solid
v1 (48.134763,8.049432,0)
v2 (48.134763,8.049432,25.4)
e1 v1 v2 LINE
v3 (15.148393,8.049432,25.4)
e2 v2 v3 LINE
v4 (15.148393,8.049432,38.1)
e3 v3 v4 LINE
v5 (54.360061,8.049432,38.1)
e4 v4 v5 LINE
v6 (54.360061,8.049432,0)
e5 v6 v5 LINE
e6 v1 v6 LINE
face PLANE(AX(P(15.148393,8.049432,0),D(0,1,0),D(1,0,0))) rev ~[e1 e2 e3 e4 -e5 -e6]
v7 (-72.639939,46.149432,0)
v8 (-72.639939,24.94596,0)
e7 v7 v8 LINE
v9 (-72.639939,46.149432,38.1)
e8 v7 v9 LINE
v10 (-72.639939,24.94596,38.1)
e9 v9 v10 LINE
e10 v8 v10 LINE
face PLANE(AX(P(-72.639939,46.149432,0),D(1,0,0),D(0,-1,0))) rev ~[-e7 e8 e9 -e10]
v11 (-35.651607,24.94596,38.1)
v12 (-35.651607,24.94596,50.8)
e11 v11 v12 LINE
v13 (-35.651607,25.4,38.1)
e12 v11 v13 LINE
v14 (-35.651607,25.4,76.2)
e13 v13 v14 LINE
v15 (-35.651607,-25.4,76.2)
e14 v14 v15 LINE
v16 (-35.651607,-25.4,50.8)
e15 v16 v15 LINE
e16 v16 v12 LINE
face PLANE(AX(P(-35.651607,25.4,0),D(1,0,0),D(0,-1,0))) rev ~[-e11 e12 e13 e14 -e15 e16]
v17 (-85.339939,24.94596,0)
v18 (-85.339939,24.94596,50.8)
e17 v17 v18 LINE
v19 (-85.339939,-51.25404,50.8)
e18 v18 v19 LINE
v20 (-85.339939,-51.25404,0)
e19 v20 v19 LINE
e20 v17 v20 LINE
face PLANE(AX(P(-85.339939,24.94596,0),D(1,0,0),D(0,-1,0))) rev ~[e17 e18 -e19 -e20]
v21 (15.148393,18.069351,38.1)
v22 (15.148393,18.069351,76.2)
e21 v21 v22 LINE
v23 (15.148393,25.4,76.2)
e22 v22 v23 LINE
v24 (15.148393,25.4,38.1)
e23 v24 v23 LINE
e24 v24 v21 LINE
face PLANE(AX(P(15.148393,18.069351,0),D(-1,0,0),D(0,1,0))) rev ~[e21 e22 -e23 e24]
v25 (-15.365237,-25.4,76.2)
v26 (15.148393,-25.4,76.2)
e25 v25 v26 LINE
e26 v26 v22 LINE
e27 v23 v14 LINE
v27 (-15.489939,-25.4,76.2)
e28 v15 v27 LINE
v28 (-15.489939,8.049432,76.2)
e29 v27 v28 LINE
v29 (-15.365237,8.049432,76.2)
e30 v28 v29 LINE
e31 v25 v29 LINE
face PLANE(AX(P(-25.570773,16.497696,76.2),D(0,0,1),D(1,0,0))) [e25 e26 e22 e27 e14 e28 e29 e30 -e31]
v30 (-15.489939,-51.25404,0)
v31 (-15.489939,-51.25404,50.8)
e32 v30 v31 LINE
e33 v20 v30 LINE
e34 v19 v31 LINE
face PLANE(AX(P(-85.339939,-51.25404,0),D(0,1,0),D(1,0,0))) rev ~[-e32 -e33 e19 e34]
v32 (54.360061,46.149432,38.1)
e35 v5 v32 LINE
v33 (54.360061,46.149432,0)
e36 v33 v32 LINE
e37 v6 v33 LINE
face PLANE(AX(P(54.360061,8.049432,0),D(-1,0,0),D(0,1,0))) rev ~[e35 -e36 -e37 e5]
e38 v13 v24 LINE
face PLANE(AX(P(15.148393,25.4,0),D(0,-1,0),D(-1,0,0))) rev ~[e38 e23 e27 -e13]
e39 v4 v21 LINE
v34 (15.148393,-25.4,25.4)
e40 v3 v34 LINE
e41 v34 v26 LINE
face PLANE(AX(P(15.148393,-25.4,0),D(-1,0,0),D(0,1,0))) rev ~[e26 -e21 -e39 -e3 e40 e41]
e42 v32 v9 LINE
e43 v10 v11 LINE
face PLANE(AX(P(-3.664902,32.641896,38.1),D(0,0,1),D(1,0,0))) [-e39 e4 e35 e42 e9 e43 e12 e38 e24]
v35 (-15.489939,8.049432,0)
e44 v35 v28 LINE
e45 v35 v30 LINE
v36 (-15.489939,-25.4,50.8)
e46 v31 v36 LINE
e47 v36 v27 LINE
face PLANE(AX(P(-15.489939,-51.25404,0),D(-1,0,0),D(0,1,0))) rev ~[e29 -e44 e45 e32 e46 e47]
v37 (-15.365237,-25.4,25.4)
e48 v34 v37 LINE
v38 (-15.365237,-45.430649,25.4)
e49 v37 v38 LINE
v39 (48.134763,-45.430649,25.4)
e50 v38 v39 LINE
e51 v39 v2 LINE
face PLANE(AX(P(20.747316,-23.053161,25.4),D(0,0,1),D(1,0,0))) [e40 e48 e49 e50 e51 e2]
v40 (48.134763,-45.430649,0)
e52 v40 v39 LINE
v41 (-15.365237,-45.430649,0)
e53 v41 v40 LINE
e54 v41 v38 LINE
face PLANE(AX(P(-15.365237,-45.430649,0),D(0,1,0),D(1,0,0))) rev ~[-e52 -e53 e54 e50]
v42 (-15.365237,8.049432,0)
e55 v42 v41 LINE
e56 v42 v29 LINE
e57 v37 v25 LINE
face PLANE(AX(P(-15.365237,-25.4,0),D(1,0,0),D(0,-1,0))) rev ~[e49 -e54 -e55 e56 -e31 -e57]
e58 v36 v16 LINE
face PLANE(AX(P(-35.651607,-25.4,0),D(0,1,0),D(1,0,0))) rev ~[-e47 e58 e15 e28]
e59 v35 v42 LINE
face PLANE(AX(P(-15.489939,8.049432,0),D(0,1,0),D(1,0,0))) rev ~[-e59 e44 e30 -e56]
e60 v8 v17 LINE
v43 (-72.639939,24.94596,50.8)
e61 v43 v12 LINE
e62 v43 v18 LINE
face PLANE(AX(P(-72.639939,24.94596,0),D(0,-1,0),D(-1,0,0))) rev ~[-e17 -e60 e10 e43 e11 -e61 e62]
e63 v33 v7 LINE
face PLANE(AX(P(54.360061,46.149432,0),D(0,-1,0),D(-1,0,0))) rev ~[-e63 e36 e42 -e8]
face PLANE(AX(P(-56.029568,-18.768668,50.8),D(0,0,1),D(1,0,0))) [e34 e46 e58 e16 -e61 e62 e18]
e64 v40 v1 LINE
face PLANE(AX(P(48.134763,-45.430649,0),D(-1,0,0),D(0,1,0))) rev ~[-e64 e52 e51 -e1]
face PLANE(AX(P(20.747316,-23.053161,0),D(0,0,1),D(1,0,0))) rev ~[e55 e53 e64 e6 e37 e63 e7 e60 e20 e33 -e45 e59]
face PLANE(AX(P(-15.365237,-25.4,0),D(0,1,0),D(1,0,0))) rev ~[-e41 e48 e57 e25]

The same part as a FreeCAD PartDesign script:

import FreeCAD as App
import Part
import Sketcher
from FreeCAD import Vector
Q = App.Units.Quantity

doc = App.newDocument("Part")
params = doc.addObject("Spreadsheet::Sheet", "Params")
for row, (alias, value) in enumerate([
    ("sketch1_width", "2 in"),
    ("pad1_length", "3 in"),
    ("sketch2_height", "3 in"),
    ("sketch2_width", "0.5 in"),
    ("sketch2_width2", "2.75 in"),
    ("pad2_length", "2 in"),
    ("sketch3_width", "2 in"),
    ("sketch3_width2", "5 in"),
    ("sketch3_height", "1.5 in"),
    ("pad3_length", "1.5 in"),
    ("sketch4_width", "2.5 in"),
    ("pad4_length", "1 in"),
], start=1):
    params.set(f"A{row}", alias)
    params.set(f"B{row}", "=" + value)
    params.setAlias(f"B{row}", alias)

body = doc.addObject("PartDesign::Body", "Body")

sketch1 = body.newObject("Sketcher::SketchObject", "Sketch")
sketch1.AttachmentSupport = (doc.getObject("XY_Plane"), [""])
sketch1.MapMode = "FlatFace"
sketch1.addGeometry([
    Part.LineSegment(Vector(-15.49, 8.05, 0), Vector(-15.37, 8.05, 0)),
    Part.LineSegment(Vector(-15.37, 8.05, 0), Vector(-15.37, -25.4, 0)),
    Part.LineSegment(Vector(-15.37, -25.4, 0), Vector(15.15, -25.4, 0)),
    Part.LineSegment(Vector(15.15, -25.4, 0), Vector(15.15, 18.07, 0)),
    Part.LineSegment(Vector(15.15, 18.07, 0), Vector(15.15, 25.4, 0)),
    Part.LineSegment(Vector(15.15, 25.4, 0), Vector(-35.65, 25.4, 0)),
    Part.LineSegment(Vector(-35.65, 25.4, 0), Vector(-35.65, -25.4, 0)),
    Part.LineSegment(Vector(-35.65, -25.4, 0), Vector(-15.49, -25.4, 0)),
    Part.LineSegment(Vector(-15.49, -25.4, 0), Vector(-15.49, 8.05, 0)),
], False)
sketch1.addConstraint([
    Sketcher.Constraint("Coincident", 0, 2, 1, 1),
    Sketcher.Constraint("Coincident", 1, 2, 2, 1),
    Sketcher.Constraint("Coincident", 2, 2, 3, 1),
    Sketcher.Constraint("Coincident", 3, 2, 4, 1),
    Sketcher.Constraint("Coincident", 4, 2, 5, 1),
    Sketcher.Constraint("Coincident", 5, 2, 6, 1),
    Sketcher.Constraint("Coincident", 6, 2, 7, 1),
    Sketcher.Constraint("Coincident", 7, 2, 8, 1),
    Sketcher.Constraint("Coincident", 8, 2, 0, 1),
    Sketcher.Constraint("Horizontal", 0),
    Sketcher.Constraint("Vertical", 1),
    Sketcher.Constraint("Horizontal", 2),
    Sketcher.Constraint("Vertical", 3),
    Sketcher.Constraint("Vertical", 4),
    Sketcher.Constraint("Horizontal", 5),
    Sketcher.Constraint("Vertical", 6),
    Sketcher.Constraint("Horizontal", 7),
    Sketcher.Constraint("Vertical", 8),
    Sketcher.Constraint("Horizontal", 2, 2, 6, 2),
    Sketcher.Constraint("Equal", 5, 6),
    Sketcher.Constraint("DistanceX", 5, 2, 5, 1, Q("2 in")),
    Sketcher.Constraint("DistanceY", 1, 2, -1, 1, Q("1 in")),
    Sketcher.Constraint("DistanceX", 2, 1, 2, 2, 30.513631),
    Sketcher.Constraint("DistanceY", 3, 1, 3, 2, 43.469351),
    Sketcher.Constraint("DistanceX", 0, 1, 0, 2, 0.124702),
    Sketcher.Constraint("DistanceY", 1, 2, 1, 1, 33.449432),
    Sketcher.Constraint("DistanceX", 7, 2, -1, 1, 15.489939),
])
sketch1.setExpression("Constraints[20]", "Params.sketch1_width")
pad1 = body.newObject("PartDesign::Pad", "Pad")
pad1.Profile = sketch1
pad1.setExpression("Length", "Params.pad1_length")

sketch2 = body.newObject("Sketcher::SketchObject", "Sketch001")
sketch2.AttachmentSupport = (doc.getObject("XY_Plane"), [""])
sketch2.MapMode = "FlatFace"
sketch2.addGeometry([
    Part.LineSegment(Vector(-73, 25, 0), Vector(-85, 25, 0)),
    Part.LineSegment(Vector(-85, 25, 0), Vector(-85, -51, 0)),
    Part.LineSegment(Vector(-85, -51, 0), Vector(-15, -51, 0)),
    Part.LineSegment(Vector(-15, -51, 0), Vector(-15, -25, 0)),
    Part.LineSegment(Vector(-15, -25, 0), Vector(-36, -25, 0)),
    Part.LineSegment(Vector(-36, -25, 0), Vector(-36, 25, 0)),
    Part.LineSegment(Vector(-36, 25, 0), Vector(-73, 25, 0)),
], False)
sketch2.addConstraint([
    Sketcher.Constraint("Coincident", 0, 2, 1, 1),
    Sketcher.Constraint("Coincident", 1, 2, 2, 1),
    Sketcher.Constraint("Coincident", 2, 2, 3, 1),
    Sketcher.Constraint("Coincident", 3, 2, 4, 1),
    Sketcher.Constraint("Coincident", 4, 2, 5, 1),
    Sketcher.Constraint("Coincident", 5, 2, 6, 1),
    Sketcher.Constraint("Coincident", 6, 2, 0, 1),
    Sketcher.Constraint("Horizontal", 0),
    Sketcher.Constraint("Vertical", 1),
    Sketcher.Constraint("Horizontal", 2),
    Sketcher.Constraint("Vertical", 3),
    Sketcher.Constraint("Horizontal", 4),
    Sketcher.Constraint("Vertical", 5),
    Sketcher.Constraint("Horizontal", 6),
    Sketcher.Constraint("DistanceY", 1, 2, 1, 1, Q("3 in")),
    Sketcher.Constraint("DistanceX", 0, 2, 0, 1, Q("0.5 in")),
    Sketcher.Constraint("DistanceY", 3, 2, -1, 1, Q("1 in")),
    Sketcher.Constraint("DistanceX", 2, 1, 2, 2, Q("2.75 in")),
    Sketcher.Constraint("DistanceY", 3, 1, 3, 2, 25.85404),
    Sketcher.Constraint("DistanceX", 4, 2, 4, 1, 20.161667),
    Sketcher.Constraint("DistanceX", 0, 2, -1, 1, 85.339939),
])
sketch2.setExpression("Constraints[14]", "Params.sketch2_height")
sketch2.setExpression("Constraints[15]", "Params.sketch2_width")
sketch2.setExpression("Constraints[17]", "Params.sketch2_width2")
pad2 = body.newObject("PartDesign::Pad", "Pad001")
pad2.Profile = sketch2
pad2.setExpression("Length", "Params.pad2_length")

sketch3 = body.newObject("Sketcher::SketchObject", "Sketch002")
sketch3.AttachmentSupport = (doc.getObject("XY_Plane"), [""])
sketch3.MapMode = "FlatFace"
sketch3.addGeometry([
    Part.LineSegment(Vector(-72.64, 46.15, 0), Vector(-72.64, 24.95, 0)),
    Part.LineSegment(Vector(-72.64, 24.95, 0), Vector(-35.65, 24.95, 0)),
    Part.LineSegment(Vector(-35.65, 24.95, 0), Vector(-35.65, 25.4, 0)),
    Part.LineSegment(Vector(-35.65, 25.4, 0), Vector(15.15, 25.4, 0)),
    Part.LineSegment(Vector(15.15, 25.4, 0), Vector(15.15, 18.07, 0)),
    Part.LineSegment(Vector(15.15, 18.07, 0), Vector(15.15, 8.05, 0)),
    Part.LineSegment(Vector(15.15, 8.05, 0), Vector(54.36, 8.05, 0)),
    Part.LineSegment(Vector(54.36, 8.05, 0), Vector(54.36, 46.15, 0)),
    Part.LineSegment(Vector(54.36, 46.15, 0), Vector(-72.64, 46.15, 0)),
], False)
sketch3.addConstraint([
    Sketcher.Constraint("Coincident", 0, 2, 1, 1),
    Sketcher.Constraint("Coincident", 1, 2, 2, 1),
    Sketcher.Constraint("Coincident", 2, 2, 3, 1),
    Sketcher.Constraint("Coincident", 3, 2, 4, 1),
    Sketcher.Constraint("Coincident", 4, 2, 5, 1),
    Sketcher.Constraint("Coincident", 5, 2, 6, 1),
    Sketcher.Constraint("Coincident", 6, 2, 7, 1),
    Sketcher.Constraint("Coincident", 7, 2, 8, 1),
    Sketcher.Constraint("Coincident", 8, 2, 0, 1),
    Sketcher.Constraint("Vertical", 0),
    Sketcher.Constraint("Horizontal", 1),
    Sketcher.Constraint("Vertical", 2),
    Sketcher.Constraint("Horizontal", 3),
    Sketcher.Constraint("Vertical", 4),
    Sketcher.Constraint("Vertical", 5),
    Sketcher.Constraint("Horizontal", 6),
    Sketcher.Constraint("Vertical", 7),
    Sketcher.Constraint("Horizontal", 8),
    Sketcher.Constraint("DistanceX", 3, 1, 3, 2, Q("2 in")),
    Sketcher.Constraint("DistanceX", 8, 2, 8, 1, Q("5 in")),
    Sketcher.Constraint("DistanceY", 7, 1, 7, 2, Q("1.5 in")),
    Sketcher.Constraint("DistanceY", -1, 1, 2, 2, Q("1 in")),
    Sketcher.Constraint("DistanceY", 2, 1, 2, 2, 0.45404),
    Sketcher.Constraint("DistanceY", 4, 2, 4, 1, 7.330649),
    Sketcher.Constraint("DistanceY", 5, 2, 5, 1, 10.019919),
    Sketcher.Constraint("DistanceX", 1, 1, 1, 2, 36.988333),
    Sketcher.Constraint("DistanceX", 0, 2, -1, 1, 72.639939),
])
sketch3.setExpression("Constraints[18]", "Params.sketch3_width")
sketch3.setExpression("Constraints[19]", "Params.sketch3_width2")
sketch3.setExpression("Constraints[20]", "Params.sketch3_height")
pad3 = body.newObject("PartDesign::Pad", "Pad002")
pad3.Profile = sketch3
pad3.setExpression("Length", "Params.pad3_length")

sketch4 = body.newObject("Sketcher::SketchObject", "Sketch003")
sketch4.AttachmentSupport = (doc.getObject("XY_Plane"), [""])
sketch4.MapMode = "FlatFace"
sketch4.addGeometry([
    Part.LineSegment(Vector(15, -25, 0), Vector(-15, -25, 0)),
    Part.LineSegment(Vector(-15, -25, 0), Vector(-15, -45, 0)),
    Part.LineSegment(Vector(-15, -45, 0), Vector(48, -45, 0)),
    Part.LineSegment(Vector(48, -45, 0), Vector(48, 8, 0)),
    Part.LineSegment(Vector(48, 8, 0), Vector(15, 8, 0)),
    Part.LineSegment(Vector(15, 8, 0), Vector(15, -25, 0)),
], False)
sketch4.addConstraint([
    Sketcher.Constraint("Coincident", 0, 2, 1, 1),
    Sketcher.Constraint("Coincident", 1, 2, 2, 1),
    Sketcher.Constraint("Coincident", 2, 2, 3, 1),
    Sketcher.Constraint("Coincident", 3, 2, 4, 1),
    Sketcher.Constraint("Coincident", 4, 2, 5, 1),
    Sketcher.Constraint("Coincident", 5, 2, 0, 1),
    Sketcher.Constraint("Horizontal", 0),
    Sketcher.Constraint("Vertical", 1),
    Sketcher.Constraint("Horizontal", 2),
    Sketcher.Constraint("Vertical", 3),
    Sketcher.Constraint("Horizontal", 4),
    Sketcher.Constraint("Vertical", 5),
    Sketcher.Constraint("DistanceX", 2, 1, 2, 2, Q("2.5 in")),
    Sketcher.Constraint("DistanceY", 0, 2, -1, 1, Q("1 in")),
    Sketcher.Constraint("DistanceX", 0, 2, 0, 1, 30.513631),
    Sketcher.Constraint("DistanceY", 1, 2, 1, 1, 20.030649),
    Sketcher.Constraint("DistanceY", 3, 1, 3, 2, 53.480081),
    Sketcher.Constraint("DistanceX", 0, 2, -1, 1, 15.365237),
])
sketch4.setExpression("Constraints[12]", "Params.sketch4_width")
pad4 = body.newObject("PartDesign::Pad", "Pad003")
pad4.Profile = sketch4
pad4.setExpression("Length", "Params.pad4_length")

doc.recompute()
